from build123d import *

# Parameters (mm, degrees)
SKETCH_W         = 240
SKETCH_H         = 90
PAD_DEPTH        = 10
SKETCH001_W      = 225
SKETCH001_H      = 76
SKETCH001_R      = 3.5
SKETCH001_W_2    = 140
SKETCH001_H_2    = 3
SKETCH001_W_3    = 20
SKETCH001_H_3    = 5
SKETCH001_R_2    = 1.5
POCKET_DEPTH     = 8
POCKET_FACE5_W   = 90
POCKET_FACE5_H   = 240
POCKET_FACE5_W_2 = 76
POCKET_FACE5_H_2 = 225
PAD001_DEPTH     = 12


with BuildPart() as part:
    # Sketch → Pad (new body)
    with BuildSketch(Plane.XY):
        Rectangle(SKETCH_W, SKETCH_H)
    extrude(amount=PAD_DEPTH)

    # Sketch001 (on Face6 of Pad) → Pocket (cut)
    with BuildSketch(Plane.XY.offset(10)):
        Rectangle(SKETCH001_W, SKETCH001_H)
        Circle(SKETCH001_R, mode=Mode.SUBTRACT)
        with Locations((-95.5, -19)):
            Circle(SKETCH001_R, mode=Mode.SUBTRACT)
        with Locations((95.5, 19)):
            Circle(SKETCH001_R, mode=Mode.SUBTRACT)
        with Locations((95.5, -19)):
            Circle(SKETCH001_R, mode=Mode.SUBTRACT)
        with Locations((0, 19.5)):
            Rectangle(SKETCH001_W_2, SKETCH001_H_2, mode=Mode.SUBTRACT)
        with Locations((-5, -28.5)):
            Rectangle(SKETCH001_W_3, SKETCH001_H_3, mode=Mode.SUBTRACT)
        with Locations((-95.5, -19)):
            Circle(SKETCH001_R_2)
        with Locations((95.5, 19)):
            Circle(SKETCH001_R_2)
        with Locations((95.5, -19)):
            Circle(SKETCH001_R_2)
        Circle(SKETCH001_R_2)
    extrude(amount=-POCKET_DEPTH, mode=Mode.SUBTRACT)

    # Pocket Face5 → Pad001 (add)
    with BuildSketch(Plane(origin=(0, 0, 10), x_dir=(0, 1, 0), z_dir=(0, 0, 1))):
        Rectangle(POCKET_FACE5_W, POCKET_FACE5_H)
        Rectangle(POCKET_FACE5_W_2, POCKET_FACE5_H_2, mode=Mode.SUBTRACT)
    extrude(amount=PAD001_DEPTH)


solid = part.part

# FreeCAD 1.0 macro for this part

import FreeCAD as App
import Part
import Sketcher
Q = App.Units.Quantity


def add_polygon(sketch, points):
    """Adds a closed chain of lines whose ends are joined by coincident constraints."""
    first, n = sketch.GeometryCount, len(points)
    for a, b in zip(points, points[1:] + points[:1]):
        sketch.addGeometry(Part.LineSegment(App.Vector(*a, 0), App.Vector(*b, 0)), False)
    for i in range(n):
        sketch.addConstraint(Sketcher.Constraint("Coincident", first + i, 2, first + (i + 1) % n, 1))

doc = App.newDocument("Part")
params = doc.addObject("Spreadsheet::Sheet", "Params")
for row, (alias, value) in enumerate([
    ("sketch1_width", "240 mm"),
    ("sketch1_height", "90 mm"),
    ("pad1_length", "10 mm"),
    ("sketch2_diameter", "7 mm"),
    ("sketch2_diameter2", "3 mm"),
    ("sketch2_width", "225 mm"),
    ("sketch2_width2", "20 mm"),
    ("sketch2_width3", "140 mm"),
    ("pocket1_length", "8 mm"),
    ("sketch3_width", "240 mm"),
    ("sketch3_width2", "225 mm"),
    ("sketch3_height", "90 mm"),
    ("sketch3_height2", "76 mm"),
    ("pad2_length", "12 mm"),
], start=1):
    params.set(f"A{row}", alias)
    params.set(f"B{row}", "=" + value)
    params.setAlias(f"B{row}", alias)

body = doc.addObject("PartDesign::Body", "Body")

# Sketch on XY plane
sketch1 = body.newObject("Sketcher::SketchObject", "Sketch")
sketch1.AttachmentSupport = (doc.getObject("XY_Plane"), [""])
sketch1.MapMode = "FlatFace"
add_polygon(sketch1, [(-120, 45), (-120, -45), (120, -45), (120, 45)])  # lines 0-3
sketch1.addConstraint(Sketcher.Constraint("Vertical", 0))
sketch1.addConstraint(Sketcher.Constraint("Horizontal", 1))
sketch1.addConstraint(Sketcher.Constraint("Vertical", 2))
sketch1.addConstraint(Sketcher.Constraint("Horizontal", 3))
sketch1.addConstraint(Sketcher.Constraint("Symmetric", 0, 2, 2, 2, -1, 1))
sketch1.addConstraint(Sketcher.Constraint("DistanceX", 1, 1, 1, 2, Q("240 mm")))
sketch1.addConstraint(Sketcher.Constraint("DistanceY", 0, 2, 0, 1, Q("90 mm")))
sketch1.setExpression("Constraints[9]", "Params.sketch1_width")
sketch1.setExpression("Constraints[10]", "Params.sketch1_height")
pad1 = body.newObject("PartDesign::Pad", "Pad")
pad1.Profile = sketch1
pad1.setExpression("Length", "Params.pad1_length")

# Sketch on XY plane
sketch2 = body.newObject("Sketcher::SketchObject", "Sketch001")
sketch2.AttachmentSupport = (doc.getObject("XY_Plane"), [""])
sketch2.MapMode = "FlatFace"
sketch2.AttachmentOffset = App.Placement(App.Vector(0, 0, 10), App.Rotation())
add_polygon(sketch2, [(-112.5, 38), (-112.5, -38), (112.5, -38), (112.5, 38)])  # lines 0-3
sketch2.addGeometry(Part.Circle(App.Vector(-95.5, -19, 0), App.Vector(0, 0, 1), 3.5), False)  # 4
add_polygon(sketch2, [(5, -31), (-15, -31), (-15, -26), (5, -26)])  # lines 5-8
sketch2.addGeometry(Part.Circle(App.Vector(95.5, -19, 0), App.Vector(0, 0, 1), 3.5), False)  # 9
sketch2.addGeometry(Part.Circle(App.Vector(0, 0, 0), App.Vector(0, 0, 1), 3.5), False)  # 10
add_polygon(sketch2, [(70, 18), (-70, 18), (-70, 21), (70, 21)])  # lines 11-14
sketch2.addGeometry(Part.Circle(App.Vector(95.5, 19, 0), App.Vector(0, 0, 1), 3.5), False)  # 15
sketch2.addGeometry(Part.Circle(App.Vector(-95.5, -19, 0), App.Vector(0, 0, 1), 1.5), False)  # 16
sketch2.addGeometry(Part.Circle(App.Vector(95.5, 19, 0), App.Vector(0, 0, 1), 1.5), False)  # 17
sketch2.addGeometry(Part.Circle(App.Vector(95.5, -19, 0), App.Vector(0, 0, 1), 1.5), False)  # 18
sketch2.addGeometry(Part.Circle(App.Vector(0, 0, 0), App.Vector(0, 0, 1), 1.5), False)  # 19
sketch2.addConstraint(Sketcher.Constraint("Vertical", 0))
sketch2.addConstraint(Sketcher.Constraint("Horizontal", 1))
sketch2.addConstraint(Sketcher.Constraint("Vertical", 2))
sketch2.addConstraint(Sketcher.Constraint("Horizontal", 3))
sketch2.addConstraint(Sketcher.Constraint("Horizontal", 5))
sketch2.addConstraint(Sketcher.Constraint("Vertical", 6))
sketch2.addConstraint(Sketcher.Constraint("Horizontal", 7))
sketch2.addConstraint(Sketcher.Constraint("Vertical", 8))
sketch2.addConstraint(Sketcher.Constraint("Horizontal", 11))
sketch2.addConstraint(Sketcher.Constraint("Vertical", 12))
sketch2.addConstraint(Sketcher.Constraint("Horizontal", 13))
sketch2.addConstraint(Sketcher.Constraint("Vertical", 14))
sketch2.addConstraint(Sketcher.Constraint("Coincident", 10, 3, -1, 1))
sketch2.addConstraint(Sketcher.Constraint("Coincident", 19, 3, -1, 1))
sketch2.addConstraint(Sketcher.Constraint("Coincident", 16, 3, 4, 3))
sketch2.addConstraint(Sketcher.Constraint("Coincident", 17, 3, 15, 3))
sketch2.addConstraint(Sketcher.Constraint("Coincident", 18, 3, 9, 3))
sketch2.addConstraint(Sketcher.Constraint("Equal", 4, 9))
sketch2.addConstraint(Sketcher.Constraint("Equal", 9, 10))
sketch2.addConstraint(Sketcher.Constraint("Equal", 10, 15))
sketch2.addConstraint(Sketcher.Constraint("Equal", 16, 17))
sketch2.addConstraint(Sketcher.Constraint("Equal", 17, 18))
sketch2.addConstraint(Sketcher.Constraint("Equal", 18, 19))
sketch2.addConstraint(Sketcher.Constraint("Symmetric", 4, 3, 15, 3, -1, 1))
sketch2.addConstraint(Sketcher.Constraint("Symmetric", 0, 2, 2, 2, -1, 1))
sketch2.addConstraint(Sketcher.Constraint("Symmetric", 4, 3, 9, 3, -2))
sketch2.addConstraint(Sketcher.Constraint("Diameter", 4, Q("7 mm")))
sketch2.addConstraint(Sketcher.Constraint("Diameter", 16, Q("3 mm")))
sketch2.addConstraint(Sketcher.Constraint("DistanceX", 1, 1, 1, 2, Q("225 mm")))
sketch2.addConstraint(Sketcher.Constraint("DistanceX", 5, 2, 5, 1, Q("20 mm")))
sketch2.addConstraint(Sketcher.Constraint("DistanceX", 11, 2, 11, 1, Q("140 mm")))
sketch2.addConstraint(Sketcher.Constraint("DistanceY", 0, 2, 0, 1, Q("76 mm")))
sketch2.addConstraint(Sketcher.Constraint("DistanceY", 6, 1, 6, 2, Q("5 mm")))
sketch2.addConstraint(Sketcher.Constraint("DistanceY", 12, 1, 12, 2, Q("3 mm")))
sketch2.addConstraint(Sketcher.Constraint("DistanceY", 4, 3, -1, 1, Q("19 mm")))
sketch2.addConstraint(Sketcher.Constraint("DistanceX", 5, 2, -1, 1, Q("15 mm")))
sketch2.addConstraint(Sketcher.Constraint("DistanceY", 5, 2, -1, 1, Q("31 mm")))
sketch2.addConstraint(Sketcher.Constraint("DistanceX", 11, 2, -1, 1, Q("70 mm")))
sketch2.addConstraint(Sketcher.Constraint("DistanceY", -1, 1, 11, 2, Q("18 mm")))
sketch2.addConstraint(Sketcher.Constraint("DistanceX", 4, 3, 9, 3, Q("191 mm")))
sketch2.setExpression("Constraints[38]", "Params.sketch2_diameter")
sketch2.setExpression("Constraints[39]", "Params.sketch2_diameter2")
sketch2.setExpression("Constraints[40]", "Params.sketch2_width")
sketch2.setExpression("Constraints[41]", "Params.sketch2_width2")
sketch2.setExpression("Constraints[42]", "Params.sketch2_width3")
pocket1 = body.newObject("PartDesign::Pocket", "Pocket")
pocket1.Profile = sketch2
pocket1.setExpression("Length", "Params.pocket1_length")

# Sketch on XY plane
sketch3 = body.newObject("Sketcher::SketchObject", "Sketch002")
sketch3.AttachmentSupport = (doc.getObject("XY_Plane"), [""])
sketch3.MapMode = "FlatFace"
sketch3.AttachmentOffset = App.Placement(App.Vector(0, 0, 10), App.Rotation())
add_polygon(sketch3, [(-120, -45), (120, -45), (120, 45), (-120, 45)])  # lines 0-3
add_polygon(sketch3, [(112, 38), (112, -38), (-112, -38), (-112, 38)])  # lines 4-7
sketch3.addConstraint(Sketcher.Constraint("Horizontal", 0))
sketch3.addConstraint(Sketcher.Constraint("Vertical", 1))
sketch3.addConstraint(Sketcher.Constraint("Horizontal", 2))
sketch3.addConstraint(Sketcher.Constraint("Vertical", 3))
sketch3.addConstraint(Sketcher.Constraint("Vertical", 4))
sketch3.addConstraint(Sketcher.Constraint("Horizontal", 5))
sketch3.addConstraint(Sketcher.Constraint("Vertical", 6))
sketch3.addConstraint(Sketcher.Constraint("Horizontal", 7))
sketch3.addConstraint(Sketcher.Constraint("Symmetric", 0, 2, 2, 2, -1, 1))
sketch3.addConstraint(Sketcher.Constraint("Symmetric", 4, 2, 6, 2, -1, 1))
sketch3.addConstraint(Sketcher.Constraint("DistanceX", 0, 1, 0, 2, Q("240 mm")))
sketch3.addConstraint(Sketcher.Constraint("DistanceX", 5, 2, 5, 1, Q("225 mm")))
sketch3.addConstraint(Sketcher.Constraint("DistanceY", 1, 1, 1, 2, Q("90 mm")))
sketch3.addConstraint(Sketcher.Constraint("DistanceY", 4, 2, 4, 1, Q("76 mm")))
sketch3.setExpression("Constraints[18]", "Params.sketch3_width")
sketch3.setExpression("Constraints[19]", "Params.sketch3_width2")
sketch3.setExpression("Constraints[20]", "Params.sketch3_height")
sketch3.setExpression("Constraints[21]", "Params.sketch3_height2")
pad2 = body.newObject("PartDesign::Pad", "Pad001")
pad2.Profile = sketch3
pad2.setExpression("Length", "Params.pad2_length")

doc.recompute()
